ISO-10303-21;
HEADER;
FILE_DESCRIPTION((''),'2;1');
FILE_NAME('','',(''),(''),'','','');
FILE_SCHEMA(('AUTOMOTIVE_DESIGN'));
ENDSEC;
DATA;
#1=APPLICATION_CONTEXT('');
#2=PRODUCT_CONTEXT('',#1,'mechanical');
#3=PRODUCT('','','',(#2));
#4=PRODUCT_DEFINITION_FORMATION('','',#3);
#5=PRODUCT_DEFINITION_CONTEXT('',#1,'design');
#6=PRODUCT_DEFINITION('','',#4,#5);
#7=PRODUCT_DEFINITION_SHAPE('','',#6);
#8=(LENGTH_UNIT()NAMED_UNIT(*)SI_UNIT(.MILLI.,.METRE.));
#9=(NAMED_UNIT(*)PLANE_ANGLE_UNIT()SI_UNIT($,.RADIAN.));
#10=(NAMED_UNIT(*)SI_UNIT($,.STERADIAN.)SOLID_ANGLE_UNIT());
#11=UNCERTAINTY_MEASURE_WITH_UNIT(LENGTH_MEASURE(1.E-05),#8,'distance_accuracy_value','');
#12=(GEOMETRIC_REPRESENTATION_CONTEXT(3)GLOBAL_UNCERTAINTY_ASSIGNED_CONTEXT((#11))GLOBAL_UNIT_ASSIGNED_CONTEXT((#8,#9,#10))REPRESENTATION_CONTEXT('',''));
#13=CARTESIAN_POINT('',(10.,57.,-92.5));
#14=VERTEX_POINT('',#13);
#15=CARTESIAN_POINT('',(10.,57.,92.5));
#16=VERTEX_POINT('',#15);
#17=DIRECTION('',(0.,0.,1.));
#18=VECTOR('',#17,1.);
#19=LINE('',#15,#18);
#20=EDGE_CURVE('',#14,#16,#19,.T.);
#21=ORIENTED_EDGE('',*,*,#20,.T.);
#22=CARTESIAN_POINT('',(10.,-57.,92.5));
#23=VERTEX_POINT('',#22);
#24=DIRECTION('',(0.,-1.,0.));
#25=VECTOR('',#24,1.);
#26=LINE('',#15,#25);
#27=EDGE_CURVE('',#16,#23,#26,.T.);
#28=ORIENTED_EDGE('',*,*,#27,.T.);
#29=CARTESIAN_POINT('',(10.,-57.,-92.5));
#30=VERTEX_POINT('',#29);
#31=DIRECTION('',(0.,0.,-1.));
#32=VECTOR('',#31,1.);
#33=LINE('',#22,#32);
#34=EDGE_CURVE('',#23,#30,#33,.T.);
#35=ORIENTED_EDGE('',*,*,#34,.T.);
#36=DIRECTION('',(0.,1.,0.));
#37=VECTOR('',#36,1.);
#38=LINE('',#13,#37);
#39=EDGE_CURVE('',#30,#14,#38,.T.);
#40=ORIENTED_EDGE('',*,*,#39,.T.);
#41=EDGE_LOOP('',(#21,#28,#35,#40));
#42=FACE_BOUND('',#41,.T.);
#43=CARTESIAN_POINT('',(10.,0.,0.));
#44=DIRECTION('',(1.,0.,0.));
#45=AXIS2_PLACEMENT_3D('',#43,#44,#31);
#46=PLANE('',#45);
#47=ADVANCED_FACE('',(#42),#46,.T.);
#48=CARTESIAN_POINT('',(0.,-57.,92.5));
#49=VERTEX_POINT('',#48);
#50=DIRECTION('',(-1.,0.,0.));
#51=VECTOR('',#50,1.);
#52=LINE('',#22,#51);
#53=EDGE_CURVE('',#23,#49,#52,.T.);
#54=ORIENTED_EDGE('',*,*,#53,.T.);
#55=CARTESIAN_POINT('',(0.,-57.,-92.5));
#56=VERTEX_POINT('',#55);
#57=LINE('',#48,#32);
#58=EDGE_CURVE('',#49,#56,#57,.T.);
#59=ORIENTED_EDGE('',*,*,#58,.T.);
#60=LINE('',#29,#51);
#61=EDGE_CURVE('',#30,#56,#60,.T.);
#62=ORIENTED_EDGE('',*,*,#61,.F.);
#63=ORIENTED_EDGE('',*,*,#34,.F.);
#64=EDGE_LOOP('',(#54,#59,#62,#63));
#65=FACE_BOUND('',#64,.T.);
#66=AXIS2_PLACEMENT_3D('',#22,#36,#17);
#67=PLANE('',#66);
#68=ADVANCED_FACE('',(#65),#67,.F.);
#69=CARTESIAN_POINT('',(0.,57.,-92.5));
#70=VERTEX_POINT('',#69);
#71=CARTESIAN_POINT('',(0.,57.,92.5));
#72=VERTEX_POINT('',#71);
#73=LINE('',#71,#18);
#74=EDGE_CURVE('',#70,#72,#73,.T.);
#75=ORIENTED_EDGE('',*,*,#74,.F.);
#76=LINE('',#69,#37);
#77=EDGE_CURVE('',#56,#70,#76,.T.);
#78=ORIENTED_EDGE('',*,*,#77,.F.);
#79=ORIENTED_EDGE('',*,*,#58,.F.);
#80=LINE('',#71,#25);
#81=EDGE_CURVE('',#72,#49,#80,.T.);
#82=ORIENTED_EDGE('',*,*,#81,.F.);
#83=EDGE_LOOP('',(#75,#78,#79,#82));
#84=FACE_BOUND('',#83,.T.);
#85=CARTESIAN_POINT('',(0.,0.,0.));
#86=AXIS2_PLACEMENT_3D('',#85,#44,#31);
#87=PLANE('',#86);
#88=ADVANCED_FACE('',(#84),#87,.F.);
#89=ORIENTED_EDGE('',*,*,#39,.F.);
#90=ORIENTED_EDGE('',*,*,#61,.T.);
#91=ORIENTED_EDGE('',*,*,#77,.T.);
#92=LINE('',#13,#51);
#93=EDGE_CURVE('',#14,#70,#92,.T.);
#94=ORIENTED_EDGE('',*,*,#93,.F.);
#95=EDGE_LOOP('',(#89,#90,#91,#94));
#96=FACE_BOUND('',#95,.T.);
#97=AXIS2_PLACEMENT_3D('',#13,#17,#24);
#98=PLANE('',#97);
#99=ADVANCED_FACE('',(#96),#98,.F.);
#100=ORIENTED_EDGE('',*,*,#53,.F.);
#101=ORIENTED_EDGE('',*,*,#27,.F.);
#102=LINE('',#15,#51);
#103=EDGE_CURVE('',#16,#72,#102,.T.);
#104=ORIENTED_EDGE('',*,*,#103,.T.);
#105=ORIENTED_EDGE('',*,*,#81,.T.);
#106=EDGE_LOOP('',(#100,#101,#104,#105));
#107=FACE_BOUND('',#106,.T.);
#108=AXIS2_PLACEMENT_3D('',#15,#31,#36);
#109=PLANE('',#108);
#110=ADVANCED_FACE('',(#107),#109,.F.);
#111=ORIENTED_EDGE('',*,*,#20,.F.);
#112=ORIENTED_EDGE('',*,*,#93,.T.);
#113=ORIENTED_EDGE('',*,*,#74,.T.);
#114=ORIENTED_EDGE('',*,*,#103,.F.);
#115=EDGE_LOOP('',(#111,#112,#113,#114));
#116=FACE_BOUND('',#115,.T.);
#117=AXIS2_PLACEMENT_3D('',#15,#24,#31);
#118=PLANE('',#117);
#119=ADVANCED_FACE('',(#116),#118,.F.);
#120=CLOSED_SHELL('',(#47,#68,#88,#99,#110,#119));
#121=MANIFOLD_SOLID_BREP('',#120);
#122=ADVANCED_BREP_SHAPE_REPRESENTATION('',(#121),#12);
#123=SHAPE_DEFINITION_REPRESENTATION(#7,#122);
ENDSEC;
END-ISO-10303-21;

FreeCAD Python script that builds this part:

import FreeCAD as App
import Part
import Sketcher
from FreeCAD import Vector

doc = App.newDocument("Part")
body = doc.addObject("PartDesign::Body", "Body")

# Sketch on YZ plane
sketch1 = body.newObject("Sketcher::SketchObject", "Sketch")
sketch1.AttachmentSupport = (doc.getObject("YZ_Plane"), [""])
sketch1.MapMode = "FlatFace"
sketch1.addGeometry([
    Part.LineSegment(Vector(57, 92, 0), Vector(-57, 92, 0)),
    Part.LineSegment(Vector(-57, 92, 0), Vector(-57, -92, 0)),
    Part.LineSegment(Vector(-57, -92, 0), Vector(57, -92, 0)),
    Part.LineSegment(Vector(57, -92, 0), Vector(57, 92, 0)),
], False)
sketch1.addConstraint([
    Sketcher.Constraint("Coincident", 0, 2, 1, 1),
    Sketcher.Constraint("Coincident", 1, 2, 2, 1),
    Sketcher.Constraint("Coincident", 2, 2, 3, 1),
    Sketcher.Constraint("Coincident", 3, 2, 0, 1),
    Sketcher.Constraint("Horizontal", 0),
    Sketcher.Constraint("Vertical", 1),
    Sketcher.Constraint("Horizontal", 2),
    Sketcher.Constraint("Vertical", 3),
    Sketcher.Constraint("Symmetric", 0, 2, 2, 2, -1, 1),
    Sketcher.Constraint("DistanceX", 0, 2, 0, 1, 114.0),
    Sketcher.Constraint("DistanceY", 1, 2, 1, 1, 185.0),
])
pad1 = body.newObject("PartDesign::Pad", "Pad")
pad1.Profile = sketch1
pad1.Length = 10

doc.recompute()
